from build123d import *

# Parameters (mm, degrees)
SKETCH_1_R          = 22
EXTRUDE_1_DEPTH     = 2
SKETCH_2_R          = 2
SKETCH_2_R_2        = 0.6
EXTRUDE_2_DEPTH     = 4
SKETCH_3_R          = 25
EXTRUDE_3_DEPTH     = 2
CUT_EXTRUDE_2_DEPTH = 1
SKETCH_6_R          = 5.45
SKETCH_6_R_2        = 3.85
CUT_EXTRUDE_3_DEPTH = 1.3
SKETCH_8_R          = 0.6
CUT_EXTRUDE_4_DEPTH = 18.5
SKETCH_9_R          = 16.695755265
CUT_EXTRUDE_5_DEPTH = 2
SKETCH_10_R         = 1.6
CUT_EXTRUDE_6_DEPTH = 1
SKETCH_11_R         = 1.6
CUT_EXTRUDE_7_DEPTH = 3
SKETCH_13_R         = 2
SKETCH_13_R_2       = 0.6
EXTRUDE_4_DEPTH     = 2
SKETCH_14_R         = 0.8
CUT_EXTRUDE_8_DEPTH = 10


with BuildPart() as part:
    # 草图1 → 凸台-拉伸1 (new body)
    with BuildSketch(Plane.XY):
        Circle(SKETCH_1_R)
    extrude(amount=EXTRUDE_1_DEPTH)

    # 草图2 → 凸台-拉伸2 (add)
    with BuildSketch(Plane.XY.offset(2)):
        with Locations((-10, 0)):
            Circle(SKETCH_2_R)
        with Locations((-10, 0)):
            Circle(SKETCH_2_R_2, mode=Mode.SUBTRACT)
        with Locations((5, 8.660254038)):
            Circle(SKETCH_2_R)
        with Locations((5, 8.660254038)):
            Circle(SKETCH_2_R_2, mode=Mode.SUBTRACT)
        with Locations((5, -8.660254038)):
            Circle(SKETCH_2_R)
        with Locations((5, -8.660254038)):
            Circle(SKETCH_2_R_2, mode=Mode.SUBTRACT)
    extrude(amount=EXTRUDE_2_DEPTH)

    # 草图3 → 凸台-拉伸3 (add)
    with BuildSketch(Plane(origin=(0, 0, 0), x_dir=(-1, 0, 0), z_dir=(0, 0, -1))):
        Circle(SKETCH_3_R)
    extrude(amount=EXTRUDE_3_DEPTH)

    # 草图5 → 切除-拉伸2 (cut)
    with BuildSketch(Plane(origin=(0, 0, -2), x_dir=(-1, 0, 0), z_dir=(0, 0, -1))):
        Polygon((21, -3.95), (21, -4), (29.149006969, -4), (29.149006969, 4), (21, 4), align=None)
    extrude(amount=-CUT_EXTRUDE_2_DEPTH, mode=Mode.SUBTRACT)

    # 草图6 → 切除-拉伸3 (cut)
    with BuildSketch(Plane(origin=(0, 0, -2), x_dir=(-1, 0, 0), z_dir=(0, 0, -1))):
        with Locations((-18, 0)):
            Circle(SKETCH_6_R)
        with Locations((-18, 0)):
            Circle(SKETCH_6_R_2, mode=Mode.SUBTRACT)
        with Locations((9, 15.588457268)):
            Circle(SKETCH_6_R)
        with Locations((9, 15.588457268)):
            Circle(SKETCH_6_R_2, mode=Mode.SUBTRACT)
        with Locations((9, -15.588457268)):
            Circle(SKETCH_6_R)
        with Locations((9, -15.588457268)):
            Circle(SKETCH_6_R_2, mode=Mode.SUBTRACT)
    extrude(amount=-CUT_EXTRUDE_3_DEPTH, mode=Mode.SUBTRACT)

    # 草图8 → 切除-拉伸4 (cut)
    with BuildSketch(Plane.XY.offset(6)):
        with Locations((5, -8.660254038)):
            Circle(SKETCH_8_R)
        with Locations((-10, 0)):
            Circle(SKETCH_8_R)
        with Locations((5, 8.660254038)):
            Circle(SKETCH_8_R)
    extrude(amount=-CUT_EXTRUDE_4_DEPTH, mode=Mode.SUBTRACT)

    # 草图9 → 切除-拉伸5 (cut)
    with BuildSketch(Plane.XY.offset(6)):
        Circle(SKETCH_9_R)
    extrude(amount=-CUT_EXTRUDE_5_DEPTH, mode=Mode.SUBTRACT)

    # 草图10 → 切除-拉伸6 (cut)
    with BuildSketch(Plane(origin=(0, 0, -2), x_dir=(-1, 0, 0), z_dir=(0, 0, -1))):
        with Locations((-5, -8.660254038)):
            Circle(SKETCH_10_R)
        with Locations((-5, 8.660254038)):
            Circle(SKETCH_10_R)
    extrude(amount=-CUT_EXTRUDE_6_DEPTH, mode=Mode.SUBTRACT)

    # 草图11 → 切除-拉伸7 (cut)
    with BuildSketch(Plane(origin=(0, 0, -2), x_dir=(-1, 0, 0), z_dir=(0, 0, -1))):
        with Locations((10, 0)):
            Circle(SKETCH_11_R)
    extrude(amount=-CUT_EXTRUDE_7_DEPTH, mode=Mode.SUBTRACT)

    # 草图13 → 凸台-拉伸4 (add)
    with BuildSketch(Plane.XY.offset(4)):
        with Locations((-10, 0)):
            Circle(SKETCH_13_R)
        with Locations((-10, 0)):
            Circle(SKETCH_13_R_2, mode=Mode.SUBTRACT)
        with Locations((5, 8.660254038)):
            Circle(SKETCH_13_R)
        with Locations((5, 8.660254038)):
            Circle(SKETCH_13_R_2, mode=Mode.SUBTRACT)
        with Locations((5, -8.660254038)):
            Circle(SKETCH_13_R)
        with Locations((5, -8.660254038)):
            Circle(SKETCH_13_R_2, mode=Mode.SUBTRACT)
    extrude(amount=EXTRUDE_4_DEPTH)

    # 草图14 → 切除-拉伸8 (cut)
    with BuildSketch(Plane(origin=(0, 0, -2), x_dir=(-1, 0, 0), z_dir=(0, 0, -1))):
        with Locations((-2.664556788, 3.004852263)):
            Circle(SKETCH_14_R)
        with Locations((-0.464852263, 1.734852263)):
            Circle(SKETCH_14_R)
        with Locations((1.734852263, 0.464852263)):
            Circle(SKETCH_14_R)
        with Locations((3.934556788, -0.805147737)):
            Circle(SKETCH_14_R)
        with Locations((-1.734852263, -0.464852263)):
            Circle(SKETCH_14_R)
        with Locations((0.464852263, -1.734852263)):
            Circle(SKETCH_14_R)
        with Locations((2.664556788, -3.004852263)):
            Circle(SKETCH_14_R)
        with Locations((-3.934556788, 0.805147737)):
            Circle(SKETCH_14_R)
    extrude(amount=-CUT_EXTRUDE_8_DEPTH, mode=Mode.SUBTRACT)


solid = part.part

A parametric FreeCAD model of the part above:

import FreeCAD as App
import Part
import Sketcher

V = App.Vector


def add_polygon(sketch, points):
    """Adds a closed chain of lines whose ends are joined by coincident constraints."""
    first, n = sketch.GeometryCount, len(points)
    for a, b in zip(points, points[1:] + points[:1]):
        sketch.addGeometry(Part.LineSegment(App.Vector(*a, 0), App.Vector(*b, 0)), False)
    for i in range(n):
        sketch.addConstraint(Sketcher.Constraint("Coincident", first + i, 2, first + (i + 1) % n, 1))

doc = App.newDocument("Part")
body = doc.addObject("PartDesign::Body", "Body")

sketch1 = body.newObject("Sketcher::SketchObject", "Sketch")
sketch1.AttachmentSupport = (doc.getObject("XY_Plane"), [""])
sketch1.MapMode = "FlatFace"
sketch1.addGeometry(Part.Circle(V(0, 0, 0), V(0, 0, 1), 22), False)
sketch1.addConstraint([
    Sketcher.Constraint("Coincident", 0, 3, -1, 1),
    Sketcher.Constraint("Diameter", 0, 44.0),
])
pad1 = body.newObject("PartDesign::Pad", "Pad")
pad1.Profile = sketch1
pad1.Length = 2

sketch2 = body.newObject("Sketcher::SketchObject", "Sketch001")
sketch2.AttachmentSupport = (doc.getObject("XY_Plane"), [""])
sketch2.MapMode = "FlatFace"
sketch2.AttachmentOffset = App.Placement(V(0, 0, 2), App.Rotation())
sketch2.addGeometry([
    Part.Circle(V(-10, 0, 0), V(0, 0, 1), 2),
    Part.Circle(V(-10, 0, 0), V(0, 0, 1), 0.6),
    Part.Circle(V(5, 8.7, 0), V(0, 0, 1), 2),
    Part.Circle(V(5, 8.7, 0), V(0, 0, 1), 0.6),
    Part.Circle(V(5, -8.7, 0), V(0, 0, 1), 2),
    Part.Circle(V(5, -8.7, 0), V(0, 0, 1), 0.6),
], False)
sketch2.addConstraint([
    Sketcher.Constraint("Coincident", 1, 3, 0, 3),
    Sketcher.Constraint("Coincident", 3, 3, 2, 3),
    Sketcher.Constraint("Coincident", 5, 3, 4, 3),
    Sketcher.Constraint("Equal", 0, 2),
    Sketcher.Constraint("Equal", 1, 3),
    Sketcher.Constraint("Equal", 2, 4),
    Sketcher.Constraint("Equal", 3, 5),
    Sketcher.Constraint("Symmetric", 2, 3, 4, 3, -1),
    Sketcher.Constraint("PointOnObject", 0, 3, -1),
    Sketcher.Constraint("Diameter", 0, 4.0),
    Sketcher.Constraint("Diameter", 1, 1.2),
    Sketcher.Constraint("DistanceX", 0, 3, -1, 1, 10.0),
    Sketcher.Constraint("DistanceX", -1, 1, 2, 3, 5.0),
    Sketcher.Constraint("DistanceY", 4, 3, 2, 3, 17.320508),
])
pad2 = body.newObject("PartDesign::Pad", "Pad001")
pad2.Profile = sketch2
pad2.Length = 4

sketch3 = body.newObject("Sketcher::SketchObject", "Sketch002")
sketch3.AttachmentSupport = (doc.getObject("XY_Plane"), [""])
sketch3.MapMode = "FlatFace"
sketch3.addGeometry(Part.Circle(V(0, 0, 0), V(0, 0, 1), 25), False)
sketch3.addConstraint([
    Sketcher.Constraint("Coincident", 0, 3, -1, 1),
    Sketcher.Constraint("Diameter", 0, 50.0),
])
pad3 = body.newObject("PartDesign::Pad", "Pad002")
pad3.Profile = sketch3
pad3.Length = 2
pad3.Reversed = True

sketch4 = body.newObject("Sketcher::SketchObject", "Sketch003")
sketch4.AttachmentSupport = (doc.getObject("XY_Plane"), [""])
sketch4.MapMode = "FlatFace"
sketch4.AttachmentOffset = App.Placement(V(0, 0, -2), App.Rotation())
add_polygon(sketch4, [(-21, -4), (-29, -4), (-29, 4), (-21, 4)])
sketch4.addConstraint([
    Sketcher.Constraint("Horizontal", 0),
    Sketcher.Constraint("Vertical", 1),
    Sketcher.Constraint("Horizontal", 2),
    Sketcher.Constraint("Vertical", 3),
    Sketcher.Constraint("DistanceY", 1, 1, 1, 2, 8.0),
    Sketcher.Constraint("DistanceY", 0, 2, -1, 1, 4.0),
    Sketcher.Constraint("DistanceX", 2, 2, -1, 1, 21.0),
    Sketcher.Constraint("DistanceX", 0, 2, 0, 1, 8.149007),
])
pocket1 = body.newObject("PartDesign::Pocket", "Pocket")
pocket1.Profile = sketch4
pocket1.Length = 1
pocket1.Reversed = True

sketch5 = body.newObject("Sketcher::SketchObject", "Sketch004")
sketch5.AttachmentSupport = (doc.getObject("XY_Plane"), [""])
sketch5.MapMode = "FlatFace"
sketch5.AttachmentOffset = App.Placement(V(0, 0, -2), App.Rotation())
sketch5.addGeometry([
    Part.Circle(V(18, 0, 0), V(0, 0, 1), 5.5),
    Part.Circle(V(18, 0, 0), V(0, 0, 1), 3.9),
    Part.Circle(V(-9, 15.6, 0), V(0, 0, 1), 5.5),
    Part.Circle(V(-9, 15.6, 0), V(0, 0, 1), 3.9),
    Part.Circle(V(-9, -15.6, 0), V(0, 0, 1), 5.5),
    Part.Circle(V(-9, -15.6, 0), V(0, 0, 1), 3.9),
], False)
sketch5.addConstraint([
    Sketcher.Constraint("Coincident", 1, 3, 0, 3),
    Sketcher.Constraint("Coincident", 3, 3, 2, 3),
    Sketcher.Constraint("Coincident", 5, 3, 4, 3),
    Sketcher.Constraint("Equal", 0, 2),
    Sketcher.Constraint("Equal", 1, 3),
    Sketcher.Constraint("Equal", 2, 4),
    Sketcher.Constraint("Equal", 3, 5),
    Sketcher.Constraint("Symmetric", 2, 3, 4, 3, -1),
    Sketcher.Constraint("PointOnObject", 0, 3, -1),
    Sketcher.Constraint("Diameter", 0, 10.9),
    Sketcher.Constraint("Diameter", 1, 7.7),
    Sketcher.Constraint("DistanceX", -1, 1, 0, 3, 18.0),
    Sketcher.Constraint("DistanceX", 2, 3, -1, 1, 9.0),
    Sketcher.Constraint("DistanceY", -1, 1, 2, 3, 15.588457),
])
pocket2 = body.newObject("PartDesign::Pocket", "Pocket001")
pocket2.Profile = sketch5
pocket2.Length = 1.3
pocket2.Reversed = True

sketch6 = body.newObject("Sketcher::SketchObject", "Sketch005")
sketch6.AttachmentSupport = (doc.getObject("XY_Plane"), [""])
sketch6.MapMode = "FlatFace"
sketch6.AttachmentOffset = App.Placement(V(0, 0, 6), App.Rotation())
sketch6.addGeometry([
    Part.Circle(V(5, -8.7, 0), V(0, 0, 1), 0.6),
    Part.Circle(V(-10, 0, 0), V(0, 0, 1), 0.6),
    Part.Circle(V(5, 8.7, 0), V(0, 0, 1), 0.6),
], False)
sketch6.addConstraint([
    Sketcher.Constraint("Equal", 0, 1),
    Sketcher.Constraint("Equal", 1, 2),
    Sketcher.Constraint("Symmetric", 0, 3, 2, 3, -1),
    Sketcher.Constraint("PointOnObject", 1, 3, -1),
    Sketcher.Constraint("Diameter", 0, 1.2),
    Sketcher.Constraint("DistanceX", -1, 1, 0, 3, 5.0),
    Sketcher.Constraint("DistanceX", 1, 3, -1, 1, 10.0),
    Sketcher.Constraint("DistanceY", 0, 3, 2, 3, 17.320508),
])
pocket3 = body.newObject("PartDesign::Pocket", "Pocket002")
pocket3.Profile = sketch6
pocket3.Length = 18.5

sketch7 = body.newObject("Sketcher::SketchObject", "Sketch006")
sketch7.AttachmentSupport = (doc.getObject("XY_Plane"), [""])
sketch7.MapMode = "FlatFace"
sketch7.AttachmentOffset = App.Placement(V(0, 0, 6), App.Rotation())
sketch7.addGeometry(Part.Circle(V(0, 0, 0), V(0, 0, 1), 17), False)
sketch7.addConstraint([
    Sketcher.Constraint("Coincident", 0, 3, -1, 1),
    Sketcher.Constraint("Diameter", 0, 33.391511),
])
pocket4 = body.newObject("PartDesign::Pocket", "Pocket003")
pocket4.Profile = sketch7
pocket4.Length = 2

sketch8 = body.newObject("Sketcher::SketchObject", "Sketch007")
sketch8.AttachmentSupport = (doc.getObject("XY_Plane"), [""])
sketch8.MapMode = "FlatFace"
sketch8.AttachmentOffset = App.Placement(V(0, 0, -2), App.Rotation())
sketch8.addGeometry([
    Part.Circle(V(5, -8.7, 0), V(0, 0, 1), 1.6),
    Part.Circle(V(5, 8.7, 0), V(0, 0, 1), 1.6),
], False)
sketch8.addConstraint([
    Sketcher.Constraint("Equal", 0, 1),
    Sketcher.Constraint("Symmetric", 0, 3, 1, 3, -1),
    Sketcher.Constraint("Diameter", 0, 3.2),
    Sketcher.Constraint("DistanceX", -1, 1, 0, 3, 5.0),
    Sketcher.Constraint("DistanceY", 0, 3, 1, 3, 17.320508),
])
pocket5 = body.newObject("PartDesign::Pocket", "Pocket004")
pocket5.Profile = sketch8
pocket5.Length = 1
pocket5.Reversed = True

sketch9 = body.newObject("Sketcher::SketchObject", "Sketch008")
sketch9.AttachmentSupport = (doc.getObject("XY_Plane"), [""])
sketch9.MapMode = "FlatFace"
sketch9.AttachmentOffset = App.Placement(V(0, 0, -2), App.Rotation())
sketch9.addGeometry(Part.Circle(V(-10, 0, 0), V(0, 0, 1), 1.6), False)
sketch9.addConstraint([
    Sketcher.Constraint("PointOnObject", 0, 3, -1),
    Sketcher.Constraint("Diameter", 0, 3.2),
    Sketcher.Constraint("DistanceX", 0, 3, -1, 1, 10.0),
])
pocket6 = body.newObject("PartDesign::Pocket", "Pocket005")
pocket6.Profile = sketch9
pocket6.Length = 3
pocket6.Reversed = True

sketch10 = body.newObject("Sketcher::SketchObject", "Sketch009")
sketch10.AttachmentSupport = (doc.getObject("XY_Plane"), [""])
sketch10.MapMode = "FlatFace"
sketch10.AttachmentOffset = App.Placement(V(0, 0, 4), App.Rotation())
sketch10.addGeometry([
    Part.Circle(V(-10, 0, 0), V(0, 0, 1), 2),
    Part.Circle(V(-10, 0, 0), V(0, 0, 1), 0.6),
    Part.Circle(V(5, 8.7, 0), V(0, 0, 1), 2),
    Part.Circle(V(5, 8.7, 0), V(0, 0, 1), 0.6),
    Part.Circle(V(5, -8.7, 0), V(0, 0, 1), 2),
    Part.Circle(V(5, -8.7, 0), V(0, 0, 1), 0.6),
], False)
sketch10.addConstraint([
    Sketcher.Constraint("Coincident", 1, 3, 0, 3),
    Sketcher.Constraint("Coincident", 3, 3, 2, 3),
    Sketcher.Constraint("Coincident", 5, 3, 4, 3),
    Sketcher.Constraint("Equal", 0, 2),
    Sketcher.Constraint("Equal", 1, 3),
    Sketcher.Constraint("Equal", 2, 4),
    Sketcher.Constraint("Equal", 3, 5),
    Sketcher.Constraint("Symmetric", 2, 3, 4, 3, -1),
    Sketcher.Constraint("PointOnObject", 0, 3, -1),
    Sketcher.Constraint("Diameter", 0, 4.0),
    Sketcher.Constraint("Diameter", 1, 1.2),
    Sketcher.Constraint("DistanceX", 0, 3, -1, 1, 10.0),
    Sketcher.Constraint("DistanceX", -1, 1, 2, 3, 5.0),
    Sketcher.Constraint("DistanceY", 4, 3, 2, 3, 17.320508),
])
pad4 = body.newObject("PartDesign::Pad", "Pad003")
pad4.Profile = sketch10
pad4.Length = 2

sketch11 = body.newObject("Sketcher::SketchObject", "Sketch010")
sketch11.AttachmentSupport = (doc.getObject("XY_Plane"), [""])
sketch11.MapMode = "FlatFace"
sketch11.AttachmentOffset = App.Placement(V(0, 0, -2), App.Rotation())
sketch11.addGeometry([
    Part.Circle(V(2.7, 3, 0), V(0, 0, 1), 0.8),
    Part.Circle(V(0.5, 1.7, 0), V(0, 0, 1), 0.8),
    Part.Circle(V(-1.7, 0.5, 0), V(0, 0, 1), 0.8),
    Part.Circle(V(-3.9, -0.8, 0), V(0, 0, 1), 0.8),
    Part.Circle(V(1.7, -0.5, 0), V(0, 0, 1), 0.8),
    Part.Circle(V(-0.5, -1.7, 0), V(0, 0, 1), 0.8),
    Part.Circle(V(-2.7, -3, 0), V(0, 0, 1), 0.8),
    Part.Circle(V(3.9, 0.8, 0), V(0, 0, 1), 0.8),
], False)
sketch11.addConstraint([
    Sketcher.Constraint("Equal", 0, 1),
    Sketcher.Constraint("Equal", 1, 2),
    Sketcher.Constraint("Equal", 2, 3),
    Sketcher.Constraint("Equal", 3, 4),
    Sketcher.Constraint("Equal", 4, 5),
    Sketcher.Constraint("Equal", 5, 6),
    Sketcher.Constraint("Equal", 6, 7),
    Sketcher.Constraint("Symmetric", 2, 3, 4, 3, -1, 1),
    Sketcher.Constraint("Symmetric", 1, 3, 5, 3, -1, 1),
    Sketcher.Constraint("Symmetric", 0, 3, 6, 3, -1, 1),
    Sketcher.Constraint("Symmetric", 3, 3, 7, 3, -1, 1),
    Sketcher.Constraint("Diameter", 0, 1.6),
    Sketcher.Constraint("DistanceY", 1, 3, 0, 3, 1.27),
    Sketcher.Constraint("DistanceY", 2, 3, 1, 3, 1.27),
    Sketcher.Constraint("DistanceY", 3, 3, 2, 3, 1.27),
    Sketcher.Constraint("DistanceX", 1, 3, 4, 3, 1.27),
    Sketcher.Constraint("DistanceX", 3, 3, 6, 3, 1.27),
    Sketcher.Constraint("DistanceX", 2, 3, 0, 3, 4.399409),
    Sketcher.Constraint("DistanceX", -1, 1, 0, 3, 2.664557),
    Sketcher.Constraint("DistanceY", -1, 1, 0, 3, 3.004852),
])
pocket7 = body.newObject("PartDesign::Pocket", "Pocket006")
pocket7.Profile = sketch11
pocket7.Length = 10
pocket7.Reversed = True

doc.recompute()
